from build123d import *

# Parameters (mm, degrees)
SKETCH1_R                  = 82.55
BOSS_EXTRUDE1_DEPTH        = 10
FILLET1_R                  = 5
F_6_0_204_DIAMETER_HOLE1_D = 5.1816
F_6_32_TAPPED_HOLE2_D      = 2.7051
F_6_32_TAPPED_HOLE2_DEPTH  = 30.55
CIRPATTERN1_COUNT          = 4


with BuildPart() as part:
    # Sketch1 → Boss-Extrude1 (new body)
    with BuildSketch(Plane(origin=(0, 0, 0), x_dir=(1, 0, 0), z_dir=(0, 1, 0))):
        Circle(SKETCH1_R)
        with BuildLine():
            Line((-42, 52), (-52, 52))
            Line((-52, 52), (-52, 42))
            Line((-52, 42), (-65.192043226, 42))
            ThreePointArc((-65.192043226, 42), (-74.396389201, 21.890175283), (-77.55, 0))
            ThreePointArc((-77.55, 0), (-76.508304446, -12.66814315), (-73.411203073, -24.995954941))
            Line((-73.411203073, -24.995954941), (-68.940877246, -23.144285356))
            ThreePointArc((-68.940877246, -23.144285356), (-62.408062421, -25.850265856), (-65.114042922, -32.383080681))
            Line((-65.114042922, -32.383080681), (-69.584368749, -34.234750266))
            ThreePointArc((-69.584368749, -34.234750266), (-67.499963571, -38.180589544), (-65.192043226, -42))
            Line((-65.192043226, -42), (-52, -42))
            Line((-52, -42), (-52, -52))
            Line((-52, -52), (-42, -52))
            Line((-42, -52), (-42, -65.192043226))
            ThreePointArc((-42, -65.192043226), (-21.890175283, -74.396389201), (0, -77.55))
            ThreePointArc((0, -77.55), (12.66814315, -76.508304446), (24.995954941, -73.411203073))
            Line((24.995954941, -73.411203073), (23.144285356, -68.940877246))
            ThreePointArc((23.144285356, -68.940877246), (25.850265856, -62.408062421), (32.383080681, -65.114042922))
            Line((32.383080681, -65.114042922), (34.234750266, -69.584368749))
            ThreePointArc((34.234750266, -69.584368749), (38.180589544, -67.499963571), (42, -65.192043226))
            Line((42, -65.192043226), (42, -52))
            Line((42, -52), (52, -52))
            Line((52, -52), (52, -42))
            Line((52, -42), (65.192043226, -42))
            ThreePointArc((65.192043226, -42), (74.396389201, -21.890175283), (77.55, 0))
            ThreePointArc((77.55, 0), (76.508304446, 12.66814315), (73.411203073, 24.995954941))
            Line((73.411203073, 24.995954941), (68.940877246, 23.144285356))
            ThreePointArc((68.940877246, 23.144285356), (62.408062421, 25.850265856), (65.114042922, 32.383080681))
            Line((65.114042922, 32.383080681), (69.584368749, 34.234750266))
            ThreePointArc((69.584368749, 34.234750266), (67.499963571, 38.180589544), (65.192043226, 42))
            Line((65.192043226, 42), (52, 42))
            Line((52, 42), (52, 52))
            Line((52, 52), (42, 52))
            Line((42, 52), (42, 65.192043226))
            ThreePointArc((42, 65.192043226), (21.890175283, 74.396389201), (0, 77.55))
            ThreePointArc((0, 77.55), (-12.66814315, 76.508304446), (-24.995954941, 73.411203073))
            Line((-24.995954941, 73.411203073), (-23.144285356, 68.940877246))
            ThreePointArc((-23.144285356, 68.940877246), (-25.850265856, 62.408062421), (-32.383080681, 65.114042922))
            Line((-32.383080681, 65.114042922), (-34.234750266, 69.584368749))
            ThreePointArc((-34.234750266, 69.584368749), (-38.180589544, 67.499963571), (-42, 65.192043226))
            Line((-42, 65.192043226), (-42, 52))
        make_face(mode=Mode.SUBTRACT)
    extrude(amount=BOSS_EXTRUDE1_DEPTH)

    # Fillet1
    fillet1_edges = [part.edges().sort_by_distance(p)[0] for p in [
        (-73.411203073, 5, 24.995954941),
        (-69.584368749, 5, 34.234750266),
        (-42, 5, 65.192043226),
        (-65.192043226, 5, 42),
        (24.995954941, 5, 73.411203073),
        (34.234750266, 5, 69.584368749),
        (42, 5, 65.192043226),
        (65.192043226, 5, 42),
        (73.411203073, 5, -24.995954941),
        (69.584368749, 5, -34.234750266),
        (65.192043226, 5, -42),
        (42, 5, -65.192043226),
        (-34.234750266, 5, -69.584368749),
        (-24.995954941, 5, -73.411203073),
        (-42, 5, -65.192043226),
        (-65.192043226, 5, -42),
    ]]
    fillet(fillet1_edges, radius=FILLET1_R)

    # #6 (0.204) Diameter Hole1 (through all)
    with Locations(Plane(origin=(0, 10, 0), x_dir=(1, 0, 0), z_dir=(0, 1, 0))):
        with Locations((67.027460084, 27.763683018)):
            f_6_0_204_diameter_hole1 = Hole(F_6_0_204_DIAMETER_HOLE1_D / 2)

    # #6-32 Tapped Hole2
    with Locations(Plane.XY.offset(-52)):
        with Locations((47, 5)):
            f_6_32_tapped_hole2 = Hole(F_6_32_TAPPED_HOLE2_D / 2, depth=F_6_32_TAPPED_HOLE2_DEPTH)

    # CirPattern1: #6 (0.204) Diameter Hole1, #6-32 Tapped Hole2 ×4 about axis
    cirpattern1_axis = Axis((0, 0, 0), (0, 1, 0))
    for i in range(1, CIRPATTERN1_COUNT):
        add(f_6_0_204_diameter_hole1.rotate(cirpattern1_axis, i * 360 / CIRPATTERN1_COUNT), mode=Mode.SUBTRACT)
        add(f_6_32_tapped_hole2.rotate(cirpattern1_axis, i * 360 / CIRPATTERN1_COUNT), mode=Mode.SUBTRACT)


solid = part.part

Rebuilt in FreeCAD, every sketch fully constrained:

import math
import FreeCAD as App
import Part
import Sketcher

V = App.Vector
Q = App.Units.Quantity


def edges_at(feature, points):
    """Names of the edges that pass closest to the given points."""
    edges = feature.Shape.Edges
    near = lambda p: min(range(len(edges)), key=lambda i: edges[i].distToShape(Part.Vertex(*p))[0])
    return sorted({f"Edge{near(p) + 1}" for p in points})

doc = App.newDocument("Part")
body = doc.addObject("PartDesign::Body", "Body")

# Sketch on XZ plane
sketch1 = body.newObject("Sketcher::SketchObject", "Sketch")
sketch1.AttachmentSupport = (doc.getObject("XZ_Plane"), [""])
sketch1.MapMode = "FlatFace"
sketch1.addGeometry([
    Part.Circle(V(0, 0, 0), V(0, 0, 1), 82.55),  # 0
    Part.LineSegment(V(-52, -52, 0), V(-42, -52, 0)),  # 1
    Part.LineSegment(V(-42, -52, 0), V(-42, -65.192043, 0)),  # 2
    Part.ArcOfCircle(Part.Circle(V(0, 0, 0), V(0, 0, 1), 77.55), math.radians(-122.791675), math.radians(-116.196683)),  # 3
    Part.LineSegment(V(-34.23475, -69.584369, 0), V(-32.383081, -65.114043, 0)),  # 4
    Part.ArcOfCircle(Part.Circle(V(-27.763683, -67.02746, 0), V(0, 0, 1), 5), math.radians(-22.5), math.radians(157.5)),  # 5
    Part.LineSegment(V(-23.144285, -68.940877, 0), V(-24.995955, -73.411203, 0)),  # 6
    Part.ArcOfCircle(Part.Circle(V(0, 0, 0), V(0, 0, 1), 77.55), math.radians(-108.803317), math.radians(-90)),  # 7
    Part.ArcOfCircle(Part.Circle(V(0, 0, 0), V(0, 0, 1), 77.55), math.radians(-90), math.radians(-57.208325)),  # 8
    Part.LineSegment(V(42, -65.192043, 0), V(42, -52, 0)),  # 9
    Part.LineSegment(V(42, -52, 0), V(52, -52, 0)),  # 10
    Part.LineSegment(V(52, -52, 0), V(52, -42, 0)),  # 11
    Part.LineSegment(V(52, -42, 0), V(65.192043, -42, 0)),  # 12
    Part.ArcOfCircle(Part.Circle(V(0, 0, 0), V(0, 0, 1), 77.55), math.radians(-32.791675), math.radians(-26.196683)),  # 13
    Part.LineSegment(V(69.584369, -34.23475, 0), V(65.114043, -32.383081, 0)),  # 14
    Part.ArcOfCircle(Part.Circle(V(67.02746, -27.763683, 0), V(0, 0, 1), 5), math.radians(67.5), math.radians(247.5)),  # 15
    Part.LineSegment(V(68.940877, -23.144285, 0), V(73.411203, -24.995955, 0)),  # 16
    Part.ArcOfCircle(Part.Circle(V(0, 0, 0), V(0, 0, 1), 77.55), math.radians(-18.803317), math.radians(0)),  # 17
    Part.ArcOfCircle(Part.Circle(V(0, 0, 0), V(0, 0, 1), 77.55), math.radians(0), math.radians(32.791675)),  # 18
    Part.LineSegment(V(65.192043, 42, 0), V(52, 42, 0)),  # 19
    Part.LineSegment(V(52, 42, 0), V(52, 52, 0)),  # 20
    Part.LineSegment(V(52, 52, 0), V(42, 52, 0)),  # 21
    Part.LineSegment(V(42, 52, 0), V(42, 65.192043, 0)),  # 22
    Part.ArcOfCircle(Part.Circle(V(0, 0, 0), V(0, 0, 1), 77.55), math.radians(57.208325), math.radians(63.803317)),  # 23
    Part.LineSegment(V(34.23475, 69.584369, 0), V(32.383081, 65.114043, 0)),  # 24
    Part.ArcOfCircle(Part.Circle(V(27.763683, 67.02746, 0), V(0, 0, 1), 5), math.radians(157.5), math.radians(337.5)),  # 25
    Part.LineSegment(V(23.144285, 68.940877, 0), V(24.995955, 73.411203, 0)),  # 26
    Part.ArcOfCircle(Part.Circle(V(0, 0, 0), V(0, 0, 1), 77.55), math.radians(71.196683), math.radians(90)),  # 27
    Part.ArcOfCircle(Part.Circle(V(0, 0, 0), V(0, 0, 1), 77.55), math.radians(90), math.radians(122.791675)),  # 28
    Part.LineSegment(V(-42, 65.192043, 0), V(-42, 52, 0)),  # 29
    Part.LineSegment(V(-42, 52, 0), V(-52, 52, 0)),  # 30
    Part.LineSegment(V(-52, 52, 0), V(-52, 42, 0)),  # 31
    Part.LineSegment(V(-52, 42, 0), V(-65.192043, 42, 0)),  # 32
    Part.ArcOfCircle(Part.Circle(V(0, 0, 0), V(0, 0, 1), 77.55), math.radians(147.208325), math.radians(153.803317)),  # 33
    Part.LineSegment(V(-69.584369, 34.23475, 0), V(-65.114043, 32.383081, 0)),  # 34
    Part.ArcOfCircle(Part.Circle(V(-67.02746, 27.763683, 0), V(0, 0, 1), 5), math.radians(-112.5), math.radians(67.5)),  # 35
    Part.LineSegment(V(-68.940877, 23.144285, 0), V(-73.411203, 24.995955, 0)),  # 36
    Part.ArcOfCircle(Part.Circle(V(0, 0, 0), V(0, 0, 1), 77.55), math.radians(161.196683), math.radians(180)),  # 37
    Part.ArcOfCircle(Part.Circle(V(0, 0, 0), V(0, 0, 1), 77.55), math.radians(180), math.radians(212.791675)),  # 38
    Part.LineSegment(V(-65.192043, -42, 0), V(-52, -42, 0)),  # 39
    Part.LineSegment(V(-52, -42, 0), V(-52, -52, 0)),  # 40
], False)
sketch1.addConstraint([
    Sketcher.Constraint("Coincident", 1, 2, 2, 1),
    Sketcher.Constraint("Coincident", 2, 2, 3, 1),
    Sketcher.Constraint("Coincident", 3, 2, 4, 1),
    Sketcher.Constraint("Tangent", 4, 2, 5, 2),
    Sketcher.Constraint("Tangent", 5, 1, 6, 1),
    Sketcher.Constraint("Coincident", 6, 2, 7, 1),
    Sketcher.Constraint("Tangent", 7, 2, 8, 1),
    Sketcher.Constraint("Coincident", 8, 2, 9, 1),
    Sketcher.Constraint("Coincident", 9, 2, 10, 1),
    Sketcher.Constraint("Coincident", 10, 2, 11, 1),
    Sketcher.Constraint("Coincident", 11, 2, 12, 1),
    Sketcher.Constraint("Coincident", 12, 2, 13, 1),
    Sketcher.Constraint("Coincident", 13, 2, 14, 1),
    Sketcher.Constraint("Tangent", 14, 2, 15, 2),
    Sketcher.Constraint("Tangent", 15, 1, 16, 1),
    Sketcher.Constraint("Coincident", 16, 2, 17, 1),
    Sketcher.Constraint("Tangent", 17, 2, 18, 1),
    Sketcher.Constraint("Coincident", 18, 2, 19, 1),
    Sketcher.Constraint("Coincident", 19, 2, 20, 1),
    Sketcher.Constraint("Coincident", 20, 2, 21, 1),
    Sketcher.Constraint("Coincident", 21, 2, 22, 1),
    Sketcher.Constraint("Coincident", 22, 2, 23, 1),
    Sketcher.Constraint("Coincident", 23, 2, 24, 1),
    Sketcher.Constraint("Tangent", 24, 2, 25, 2),
    Sketcher.Constraint("Tangent", 25, 1, 26, 1),
    Sketcher.Constraint("Coincident", 26, 2, 27, 1),
    Sketcher.Constraint("Tangent", 27, 2, 28, 1),
    Sketcher.Constraint("Coincident", 28, 2, 29, 1),
    Sketcher.Constraint("Coincident", 29, 2, 30, 1),
    Sketcher.Constraint("Coincident", 30, 2, 31, 1),
    Sketcher.Constraint("Coincident", 31, 2, 32, 1),
    Sketcher.Constraint("Coincident", 32, 2, 33, 1),
    Sketcher.Constraint("Coincident", 33, 2, 34, 1),
    Sketcher.Constraint("Tangent", 34, 2, 35, 2),
    Sketcher.Constraint("Tangent", 35, 1, 36, 1),
    Sketcher.Constraint("Coincident", 36, 2, 37, 1),
    Sketcher.Constraint("Tangent", 37, 2, 38, 1),
    Sketcher.Constraint("Coincident", 38, 2, 39, 1),
    Sketcher.Constraint("Coincident", 39, 2, 40, 1),
    Sketcher.Constraint("Coincident", 40, 2, 1, 1),
    Sketcher.Constraint("Horizontal", 1),
    Sketcher.Constraint("Vertical", 2),
    Sketcher.Constraint("Vertical", 9),
    Sketcher.Constraint("Horizontal", 10),
    Sketcher.Constraint("Vertical", 11),
    Sketcher.Constraint("Horizontal", 12),
    Sketcher.Constraint("Horizontal", 19),
    Sketcher.Constraint("Vertical", 20),
    Sketcher.Constraint("Horizontal", 21),
    Sketcher.Constraint("Vertical", 22),
    Sketcher.Constraint("Vertical", 29),
    Sketcher.Constraint("Horizontal", 30),
    Sketcher.Constraint("Vertical", 31),
    Sketcher.Constraint("Horizontal", 32),
    Sketcher.Constraint("Horizontal", 39),
    Sketcher.Constraint("Vertical", 40),
    Sketcher.Constraint("Coincident", 0, 3, -1, 1),
    Sketcher.Constraint("Coincident", 3, 3, -1, 1),
    Sketcher.Constraint("Coincident", 7, 3, -1, 1),
    Sketcher.Constraint("Coincident", 13, 3, -1, 1),
    Sketcher.Constraint("Coincident", 17, 3, -1, 1),
    Sketcher.Constraint("Coincident", 23, 3, -1, 1),
    Sketcher.Constraint("Coincident", 27, 3, -1, 1),
    Sketcher.Constraint("Coincident", 33, 3, -1, 1),
    Sketcher.Constraint("Coincident", 37, 3, -1, 1),
    Sketcher.Constraint("Equal", 3, 7),
    Sketcher.Constraint("Equal", 7, 8),
    Sketcher.Constraint("Equal", 8, 13),
    Sketcher.Constraint("Equal", 5, 15),
    Sketcher.Constraint("Equal", 13, 17),
    Sketcher.Constraint("Equal", 17, 18),
    Sketcher.Constraint("Equal", 18, 23),
    Sketcher.Constraint("Equal", 15, 25),
    Sketcher.Constraint("Equal", 23, 27),
    Sketcher.Constraint("Equal", 27, 28),
    Sketcher.Constraint("Equal", 28, 33),
    Sketcher.Constraint("Equal", 25, 35),
    Sketcher.Constraint("Equal", 33, 37),
    Sketcher.Constraint("Equal", 37, 38),
    Sketcher.Constraint("Symmetric", 5, 3, 25, 3, -1, 1),
    Sketcher.Constraint("Symmetric", 15, 3, 35, 3, -1, 1),
    Sketcher.Constraint("Symmetric", 1, 2, 21, 2, -1, 1),
    Sketcher.Constraint("Symmetric", 9, 2, 29, 2, -1, 1),
    Sketcher.Constraint("Symmetric", 11, 2, 31, 2, -1, 1),
    Sketcher.Constraint("Symmetric", 19, 2, 39, 2, -1, 1),
    Sketcher.Constraint("Symmetric", 1, 2, 9, 2, -2),
    Sketcher.Constraint("Symmetric", 19, 2, 31, 2, -2),
    Sketcher.Constraint("PointOnObject", 7, 2, -2),
    Sketcher.Constraint("PointOnObject", 17, 2, -1),
    Sketcher.Constraint("PointOnObject", 27, 2, -2),
    Sketcher.Constraint("PointOnObject", 37, 2, -1),
    Sketcher.Constraint("Parallel", 4, 6),
    Sketcher.Constraint("Perpendicular", 6, 14),
    Sketcher.Constraint("Parallel", 14, 16),
    Sketcher.Constraint("Perpendicular", 16, 24),
    Sketcher.Constraint("Parallel", 24, 26),
    Sketcher.Constraint("Perpendicular", 26, 34),
    Sketcher.Constraint("Parallel", 34, 36),
    Sketcher.Constraint("Equal", 39, 2),
    Sketcher.Constraint("Equal", 30, 11),
    Sketcher.Constraint("Equal", 4, 6),
    Sketcher.Constraint("Equal", 6, 14),
    Sketcher.Constraint("Equal", 14, 16),
    Sketcher.Constraint("Radius", 5, 5.0),
    Sketcher.Constraint("Diameter", 0, 165.1),
    Sketcher.Constraint("DistanceX", 1, 1, 1, 2, 10.0),
    Sketcher.Constraint("Radius", 3, 77.55),
    Sketcher.Constraint("DistanceX", 1, 2, -1, 1, 42.0),
    Sketcher.Constraint("Angle", 4, Q("67.5 deg")),
    Sketcher.Constraint("DistanceY", 2, 2, 4, 2, 0.078),
])
pad1 = body.newObject("PartDesign::Pad", "Pad")
pad1.Profile = sketch1
pad1.Length = 10
pad1.Reversed = True
doc.recompute()

fillet = body.newObject("PartDesign::Fillet", "Fillet")
fillet.Base = (pad1, edges_at(pad1, [
    (-73.411, 5, 24.996),
    (-69.584, 5, 34.235),
    (-42, 5, 65.192),
    (-65.192, 5, 42),
    (24.996, 5, 73.411),
    (34.235, 5, 69.584),
    (42, 5, 65.192),
    (65.192, 5, 42),
    (73.411, 5, -24.996),
    (69.584, 5, -34.235),
    (65.192, 5, -42),
    (42, 5, -65.192),
    (-34.235, 5, -69.584),
    (-24.996, 5, -73.411),
    (-42, 5, -65.192),
    (-65.192, 5, -42),
]))
fillet.Radius = 5

# Sketch on XZ plane
sketch2 = body.newObject("Sketcher::SketchObject", "Sketch001")
sketch2.AttachmentSupport = (doc.getObject("XZ_Plane"), [""])
sketch2.MapMode = "FlatFace"
sketch2.AttachmentOffset = App.Placement(V(0, 0, -10), App.Rotation())
sketch2.addGeometry(Part.Circle(V(67.02746, -27.763683, 0), V(0, 0, 1), 2.5908), False)
sketch2.addConstraint([
    Sketcher.Constraint("Diameter", 0, 5.1816),
    Sketcher.Constraint("DistanceX", -1, 1, 0, 3, 67.02746),
    Sketcher.Constraint("DistanceY", 0, 3, -1, 1, 27.763683),
])
doc.recompute()
hole = body.newObject("PartDesign::Hole", "Hole")
hole.Profile = sketch2
hole.ThreadType = "None"
hole.Diameter = 5.1816
hole.DepthType = "ThroughAll"
hole.Reversed = True

# Sketch on XY plane
sketch3 = body.newObject("Sketcher::SketchObject", "Sketch002")
sketch3.AttachmentSupport = (doc.getObject("XY_Plane"), [""])
sketch3.MapMode = "FlatFace"
sketch3.AttachmentOffset = App.Placement(V(0, 0, -52), App.Rotation())
sketch3.addGeometry(Part.Circle(V(47, 5, 0), V(0, 0, 1), 1.35255), False)
sketch3.addConstraint([
    Sketcher.Constraint("DistanceX", -1, 1, 0, 3, 47.0),
    Sketcher.Constraint("DistanceY", -1, 1, 0, 3, 5.0),
    Sketcher.Constraint("Diameter", 0, 2.7051),
])
doc.recompute()
hole2 = body.newObject("PartDesign::Hole", "Hole001")
hole2.Profile = sketch3
hole2.ThreadType = "None"
hole2.Diameter = 2.7051
hole2.DepthType = "Dimension"
hole2.Depth = 30.55
hole2.DrillPoint = "Flat"
doc.recompute()

polarpattern = body.newObject("PartDesign::PolarPattern", "PolarPattern")
polarpattern.Originals = [hole, hole2]
polarpattern.Axis = (doc.getObject("Y_Axis"), [""])
polarpattern.Angle = 360
polarpattern.Occurrences = 4
body.Tip = polarpattern

doc.recompute()
